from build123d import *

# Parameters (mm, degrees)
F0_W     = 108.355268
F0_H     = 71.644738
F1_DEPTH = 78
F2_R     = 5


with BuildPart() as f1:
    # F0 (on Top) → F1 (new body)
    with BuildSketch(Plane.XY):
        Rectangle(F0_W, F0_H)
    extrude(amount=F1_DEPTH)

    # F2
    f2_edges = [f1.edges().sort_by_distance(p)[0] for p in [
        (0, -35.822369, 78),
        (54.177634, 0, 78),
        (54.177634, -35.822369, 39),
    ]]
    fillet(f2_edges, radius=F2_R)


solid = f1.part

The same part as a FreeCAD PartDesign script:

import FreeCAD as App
import Part
import Sketcher

V = App.Vector
Q = App.Units.Quantity


def edges_at(feature, points):
    """Names of the edges that pass closest to the given points."""
    edges = feature.Shape.Edges
    near = lambda p: min(range(len(edges)), key=lambda i: edges[i].distToShape(Part.Vertex(*p))[0])
    return sorted({f"Edge{near(p) + 1}" for p in points})

doc = App.newDocument("Part")
body = doc.addObject("PartDesign::Body", "Body")

sketch1 = body.newObject("Sketcher::SketchObject", "Sketch")
sketch1.AttachmentSupport = (doc.getObject("XY_Plane"), [""])
sketch1.MapMode = "FlatFace"
sketch1.addGeometry(Part.LineSegment(V(-54, 36, 0), V(-54, -36, 0)), False)
sketch1.addGeometry(Part.LineSegment(V(-54, -36, 0), V(54, -36, 0)), False)
sketch1.addGeometry(Part.LineSegment(V(54, -36, 0), V(54, 36, 0)), False)
sketch1.addGeometry(Part.LineSegment(V(54, 36, 0), V(-54, 36, 0)), False)
sketch1.addConstraint(Sketcher.Constraint("Coincident", 0, 2, 1, 1))
sketch1.addConstraint(Sketcher.Constraint("Coincident", 1, 2, 2, 1))
sketch1.addConstraint(Sketcher.Constraint("Coincident", 2, 2, 3, 1))
sketch1.addConstraint(Sketcher.Constraint("Coincident", 3, 2, 0, 1))
sketch1.addConstraint(Sketcher.Constraint("Vertical", 0))
sketch1.addConstraint(Sketcher.Constraint("Horizontal", 1))
sketch1.addConstraint(Sketcher.Constraint("Vertical", 2))
sketch1.addConstraint(Sketcher.Constraint("Horizontal", 3))
sketch1.addConstraint(Sketcher.Constraint("Symmetric", 0, 2, 2, 2, -1, 1))
sketch1.addConstraint(Sketcher.Constraint("DistanceY", 0, 2, 0, 1, Q("71.644738 mm")))
sketch1.addConstraint(Sketcher.Constraint("DistanceX", 1, 1, 1, 2, Q("108.355268 mm")))
pad1 = body.newObject("PartDesign::Pad", "Pad")
pad1.Profile = sketch1
pad1.Length = 78
doc.recompute()

fillet = body.newObject("PartDesign::Fillet", "Fillet")
fillet.Base = (pad1, edges_at(pad1, [(0, -35.822, 78), (54.178, 0, 78), (54.178, -35.822, 39)]))
fillet.Radius = 5

doc.recompute()
